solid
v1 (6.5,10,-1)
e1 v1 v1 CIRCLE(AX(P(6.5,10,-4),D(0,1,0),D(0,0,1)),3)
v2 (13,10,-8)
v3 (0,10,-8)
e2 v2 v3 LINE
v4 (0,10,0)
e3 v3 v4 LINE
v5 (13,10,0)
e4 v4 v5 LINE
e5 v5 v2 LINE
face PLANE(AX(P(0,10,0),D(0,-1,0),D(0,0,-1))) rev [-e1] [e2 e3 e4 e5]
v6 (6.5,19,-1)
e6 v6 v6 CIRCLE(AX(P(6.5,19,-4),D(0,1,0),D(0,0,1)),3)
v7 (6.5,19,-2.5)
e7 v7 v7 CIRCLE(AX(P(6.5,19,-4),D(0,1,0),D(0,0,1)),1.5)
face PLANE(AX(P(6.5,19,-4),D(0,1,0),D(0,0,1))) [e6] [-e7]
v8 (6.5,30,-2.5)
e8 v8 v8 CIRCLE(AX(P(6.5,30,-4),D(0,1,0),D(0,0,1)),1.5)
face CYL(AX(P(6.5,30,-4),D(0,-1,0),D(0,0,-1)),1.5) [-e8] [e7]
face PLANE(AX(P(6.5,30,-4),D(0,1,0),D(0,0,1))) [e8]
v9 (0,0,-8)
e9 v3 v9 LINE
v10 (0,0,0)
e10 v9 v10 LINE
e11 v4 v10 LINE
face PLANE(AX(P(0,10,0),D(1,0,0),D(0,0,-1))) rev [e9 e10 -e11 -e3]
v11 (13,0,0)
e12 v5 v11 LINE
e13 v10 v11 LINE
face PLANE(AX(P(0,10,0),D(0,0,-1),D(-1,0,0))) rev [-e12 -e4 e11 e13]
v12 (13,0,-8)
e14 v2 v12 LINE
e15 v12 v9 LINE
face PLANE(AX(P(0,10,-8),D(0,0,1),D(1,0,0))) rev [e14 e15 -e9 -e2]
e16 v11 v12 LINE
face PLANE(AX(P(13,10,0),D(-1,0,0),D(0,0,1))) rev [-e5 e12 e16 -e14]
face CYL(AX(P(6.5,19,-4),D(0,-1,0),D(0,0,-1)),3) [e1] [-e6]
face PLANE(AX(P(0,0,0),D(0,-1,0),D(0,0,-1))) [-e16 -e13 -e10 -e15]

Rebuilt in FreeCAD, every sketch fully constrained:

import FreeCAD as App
import Part
import Sketcher

V = App.Vector
Q = App.Units.Quantity


def add_polygon(sketch, points):
    """Adds a closed chain of lines whose ends are joined by coincident constraints."""
    first, n = sketch.GeometryCount, len(points)
    for a, b in zip(points, points[1:] + points[:1]):
        sketch.addGeometry(Part.LineSegment(App.Vector(*a, 0), App.Vector(*b, 0)), False)
    for i in range(n):
        sketch.addConstraint(Sketcher.Constraint("Coincident", first + i, 2, first + (i + 1) % n, 1))

doc = App.newDocument("Part")
body = doc.addObject("PartDesign::Body", "Body")

# Sketch on XZ plane
sketch1 = doc.addObject("Sketcher::SketchObject", "Sketch")
body.addObject(sketch1)
sketch1.AttachmentSupport = (doc.XZ_Plane, [""])
sketch1.MapMode = "FlatFace"
add_polygon(sketch1, [(0, -8), (0, 0), (13, 0), (13, -8)])  # lines 0-3
sketch1.addConstraint([
    Sketcher.Constraint("Vertical", 0),
    Sketcher.Constraint("Horizontal", 1),
    Sketcher.Constraint("Vertical", 2),
    Sketcher.Constraint("Horizontal", 3),
    Sketcher.Constraint("Coincident", 0, 2, -1, 1),
    Sketcher.Constraint("DistanceX", 1, 1, 1, 2, Q("13 mm")),
    Sketcher.Constraint("DistanceY", 0, 1, 0, 2, Q("8 mm")),
])
pad1 = doc.addObject("PartDesign::Pad", "Pad")
body.addObject(pad1)
pad1.Profile = sketch1
pad1.Length = 10
pad1.Reversed = True

# Sketch on XZ plane
sketch2 = doc.addObject("Sketcher::SketchObject", "Sketch001")
body.addObject(sketch2)
sketch2.AttachmentSupport = (doc.XZ_Plane, [""])
sketch2.MapMode = "FlatFace"
sketch2.AttachmentOffset = App.Placement(V(0, 0, -10), App.Rotation())
sketch2.addGeometry(Part.Circle(V(6.5, -4, 0), V(0, 0, 1), 3), False)
sketch2.addConstraint([
    Sketcher.Constraint("Diameter", 0, Q("6 mm")),
    Sketcher.Constraint("DistanceY", 0, 3, -1, 1, Q("4 mm")),
    Sketcher.Constraint("DistanceX", -1, 1, 0, 3, Q("6.5 mm")),
])
pad2 = doc.addObject("PartDesign::Pad", "Pad001")
body.addObject(pad2)
pad2.Profile = sketch2
pad2.Length = 9
pad2.Reversed = True

# Sketch on XZ plane
sketch3 = doc.addObject("Sketcher::SketchObject", "Sketch002")
body.addObject(sketch3)
sketch3.AttachmentSupport = (doc.XZ_Plane, [""])
sketch3.MapMode = "FlatFace"
sketch3.AttachmentOffset = App.Placement(V(0, 0, -19), App.Rotation())
sketch3.addGeometry(Part.Circle(V(6.5, -4, 0), V(0, 0, 1), 1.5), False)
sketch3.addConstraint([
    Sketcher.Constraint("Diameter", 0, Q("3 mm")),
    Sketcher.Constraint("DistanceY", 0, 3, -1, 1, Q("4 mm")),
    Sketcher.Constraint("DistanceX", -1, 1, 0, 3, Q("6.5 mm")),
])
pad3 = doc.addObject("PartDesign::Pad", "Pad002")
body.addObject(pad3)
pad3.Profile = sketch3
pad3.Length = 11
pad3.Reversed = True

doc.recompute()
